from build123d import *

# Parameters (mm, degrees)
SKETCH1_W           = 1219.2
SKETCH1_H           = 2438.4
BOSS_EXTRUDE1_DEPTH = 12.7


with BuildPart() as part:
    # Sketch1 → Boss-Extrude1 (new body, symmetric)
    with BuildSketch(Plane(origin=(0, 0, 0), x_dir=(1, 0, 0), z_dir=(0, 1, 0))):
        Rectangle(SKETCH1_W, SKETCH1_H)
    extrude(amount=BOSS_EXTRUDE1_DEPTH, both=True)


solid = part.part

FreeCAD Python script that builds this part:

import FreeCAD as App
import Part
import Sketcher
from FreeCAD import Vector
Q = App.Units.Quantity

doc = App.newDocument("Part")
body = doc.addObject("PartDesign::Body", "Body")

# Sketch on XZ plane
sketch1 = body.newObject("Sketcher::SketchObject", "Sketch")
sketch1.AttachmentSupport = (doc.getObject("XZ_Plane"), [""])
sketch1.MapMode = "FlatFace"
sketch1.addGeometry(Part.LineSegment(Vector(-610, -1219, 0), Vector(-610, 1219, 0)), False)
sketch1.addGeometry(Part.LineSegment(Vector(-610, 1219, 0), Vector(610, 1219, 0)), False)
sketch1.addGeometry(Part.LineSegment(Vector(610, 1219, 0), Vector(610, -1219, 0)), False)
sketch1.addGeometry(Part.LineSegment(Vector(610, -1219, 0), Vector(-610, -1219, 0)), False)
sketch1.addConstraint(Sketcher.Constraint("Coincident", 0, 2, 1, 1))
sketch1.addConstraint(Sketcher.Constraint("Coincident", 1, 2, 2, 1))
sketch1.addConstraint(Sketcher.Constraint("Coincident", 2, 2, 3, 1))
sketch1.addConstraint(Sketcher.Constraint("Coincident", 3, 2, 0, 1))
sketch1.addConstraint(Sketcher.Constraint("Vertical", 0))
sketch1.addConstraint(Sketcher.Constraint("Horizontal", 1))
sketch1.addConstraint(Sketcher.Constraint("Vertical", 2))
sketch1.addConstraint(Sketcher.Constraint("Horizontal", 3))
sketch1.addConstraint(Sketcher.Constraint("Symmetric", 0, 2, 2, 2, -1, 1))
sketch1.addConstraint(Sketcher.Constraint("DistanceX", 1, 1, 1, 2, Q("48 in")))
sketch1.addConstraint(Sketcher.Constraint("DistanceY", 0, 1, 0, 2, Q("96 in")))
pad1 = body.newObject("PartDesign::Pad", "Pad")
pad1.Profile = sketch1
pad1.Length = Q("1 in")
pad1.Midplane = True

doc.recompute()
